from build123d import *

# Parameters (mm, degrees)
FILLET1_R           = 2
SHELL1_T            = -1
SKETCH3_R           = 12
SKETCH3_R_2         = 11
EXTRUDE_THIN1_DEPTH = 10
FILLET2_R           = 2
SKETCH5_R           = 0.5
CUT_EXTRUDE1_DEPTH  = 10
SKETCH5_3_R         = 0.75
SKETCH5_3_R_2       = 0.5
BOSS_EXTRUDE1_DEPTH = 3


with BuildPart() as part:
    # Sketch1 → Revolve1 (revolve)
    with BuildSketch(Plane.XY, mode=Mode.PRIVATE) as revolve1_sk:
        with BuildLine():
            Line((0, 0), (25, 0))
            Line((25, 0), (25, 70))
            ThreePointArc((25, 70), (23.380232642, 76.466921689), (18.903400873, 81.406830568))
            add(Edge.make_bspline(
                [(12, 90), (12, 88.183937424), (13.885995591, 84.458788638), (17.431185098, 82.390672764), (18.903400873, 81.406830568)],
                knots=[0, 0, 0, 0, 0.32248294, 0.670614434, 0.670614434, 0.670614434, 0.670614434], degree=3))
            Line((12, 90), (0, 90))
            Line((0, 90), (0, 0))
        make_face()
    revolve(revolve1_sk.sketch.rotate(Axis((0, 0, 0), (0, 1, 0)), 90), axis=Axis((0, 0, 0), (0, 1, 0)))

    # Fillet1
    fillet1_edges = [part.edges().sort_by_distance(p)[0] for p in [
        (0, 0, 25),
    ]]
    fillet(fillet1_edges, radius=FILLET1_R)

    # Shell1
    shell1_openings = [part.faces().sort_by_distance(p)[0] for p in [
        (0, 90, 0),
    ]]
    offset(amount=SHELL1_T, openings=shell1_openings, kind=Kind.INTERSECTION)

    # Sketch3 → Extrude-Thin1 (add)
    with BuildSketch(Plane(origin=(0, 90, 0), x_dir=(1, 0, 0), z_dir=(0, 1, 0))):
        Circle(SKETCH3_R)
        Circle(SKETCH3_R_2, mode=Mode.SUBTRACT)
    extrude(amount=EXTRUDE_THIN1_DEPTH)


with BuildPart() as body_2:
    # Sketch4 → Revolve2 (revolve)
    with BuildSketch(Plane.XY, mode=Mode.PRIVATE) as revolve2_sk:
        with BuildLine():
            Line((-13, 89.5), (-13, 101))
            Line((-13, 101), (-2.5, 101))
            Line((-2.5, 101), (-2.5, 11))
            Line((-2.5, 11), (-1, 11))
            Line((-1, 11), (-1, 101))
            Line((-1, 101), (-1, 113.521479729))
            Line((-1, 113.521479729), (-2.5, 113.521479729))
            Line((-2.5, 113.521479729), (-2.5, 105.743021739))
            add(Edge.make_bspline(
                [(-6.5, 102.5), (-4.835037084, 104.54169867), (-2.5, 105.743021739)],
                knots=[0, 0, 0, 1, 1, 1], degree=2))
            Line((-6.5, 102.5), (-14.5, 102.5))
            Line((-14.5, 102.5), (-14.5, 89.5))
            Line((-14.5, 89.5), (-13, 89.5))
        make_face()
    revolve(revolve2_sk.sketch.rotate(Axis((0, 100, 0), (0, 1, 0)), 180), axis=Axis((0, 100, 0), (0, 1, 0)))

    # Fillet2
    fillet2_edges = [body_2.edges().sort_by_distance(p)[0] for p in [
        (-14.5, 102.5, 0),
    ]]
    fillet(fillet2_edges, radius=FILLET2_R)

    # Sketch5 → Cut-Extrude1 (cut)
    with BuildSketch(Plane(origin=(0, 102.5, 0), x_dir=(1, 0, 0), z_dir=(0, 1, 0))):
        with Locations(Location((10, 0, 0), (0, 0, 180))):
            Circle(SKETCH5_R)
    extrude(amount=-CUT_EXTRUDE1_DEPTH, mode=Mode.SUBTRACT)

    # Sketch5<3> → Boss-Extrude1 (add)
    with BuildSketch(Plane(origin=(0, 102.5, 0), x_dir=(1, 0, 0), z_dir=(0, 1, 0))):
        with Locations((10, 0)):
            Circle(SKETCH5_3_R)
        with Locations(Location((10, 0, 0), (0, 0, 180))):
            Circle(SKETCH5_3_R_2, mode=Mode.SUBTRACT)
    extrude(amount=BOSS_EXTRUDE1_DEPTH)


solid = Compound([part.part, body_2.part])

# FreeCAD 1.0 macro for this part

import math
import FreeCAD as App
import Part
import Sketcher

V = App.Vector
Q = App.Units.Quantity


def edges_at(feature, points):
    """Names of the edges that pass closest to the given points."""
    edges = feature.Shape.Edges
    near = lambda p: min(range(len(edges)), key=lambda i: edges[i].distToShape(Part.Vertex(*p))[0])
    return sorted({f"Edge{near(p) + 1}" for p in points})


def faces_at(feature, points):
    """Names of the faces that lie closest to the given points."""
    faces = feature.Shape.Faces
    near = lambda p: min(range(len(faces)), key=lambda i: faces[i].distToShape(Part.Vertex(*p))[0])
    return sorted({f"Face{near(p) + 1}" for p in points})

doc = App.newDocument("Part")
body = doc.addObject("PartDesign::Body", "Body")

# Sketch on XY plane
sketch1 = doc.addObject("Sketcher::SketchObject", "Sketch")
body.addObject(sketch1)
sketch1.AttachmentSupport = (doc.XY_Plane, [""])
sketch1.MapMode = "FlatFace"
sketch1.addGeometry([
    Part.LineSegment(V(0, 0, 0), V(25, 0, 0)),  # 0
    Part.LineSegment(V(25, 0, 0), V(25, 70, 0)),  # 1
    Part.ArcOfCircle(Part.Circle(V(11.280523, 70, 0), V(0, 0, 1), 13.719477), math.radians(0), math.radians(56.246259)),  # 2
    Part.BSplineCurve([V(12, 90, 0), V(12, 88.183937, 0), V(13.885996, 84.458789, 0), V(17.431185, 82.390673, 0), V(18.903401, 81.406831, 0)], [4, 1, 4], [0, 0.32248294, 0.670614434], False, 3, [1, 1, 1, 1, 1], False),  # 3
    Part.LineSegment(V(12, 90, 0), V(0, 90, 0)),  # 4
    Part.LineSegment(V(0, 90, 0), V(0, 0, 0)),  # 5
], False)
sketch1.addConstraint([
    Sketcher.Constraint("Block", 3),
    Sketcher.Constraint("Coincident", 0, 2, 1, 1),
    Sketcher.Constraint("Coincident", 1, 2, 2, 1),
    Sketcher.Constraint("Coincident", 2, 2, 3, 2),
    Sketcher.Constraint("Coincident", 3, 1, 4, 1),
    Sketcher.Constraint("Coincident", 4, 2, 5, 1),
    Sketcher.Constraint("Coincident", 5, 2, 0, 1),
    Sketcher.Constraint("Horizontal", 0),
    Sketcher.Constraint("Vertical", 1),
    Sketcher.Constraint("Horizontal", 4),
    Sketcher.Constraint("Vertical", 5),
    Sketcher.Constraint("Coincident", 5, 2, -1, 1),
    Sketcher.Constraint("DistanceX", 0, 1, 0, 2, Q("25 mm")),
    Sketcher.Constraint("DistanceY", 1, 1, 1, 2, Q("70 mm")),
    Sketcher.Constraint("DistanceY", -1, 1, 2, 3, Q("70 mm")),
])
revolution = doc.addObject("PartDesign::Revolution", "Revolution")
body.addObject(revolution)
revolution.Profile = sketch1
revolution.ReferenceAxis = (sketch1, ["V_Axis"])
revolution.Angle = 360
doc.recompute()

fillet = doc.addObject("PartDesign::Fillet", "Fillet")
body.addObject(fillet)
fillet.Base = (revolution, edges_at(revolution, [(0, 0, 25)]))
fillet.Radius = 2
doc.recompute()

thickness = doc.addObject("PartDesign::Thickness", "Thickness")
body.addObject(thickness)
thickness.Base = (fillet, faces_at(fillet, [(0, 90, 0)]))
thickness.Value = 1
thickness.Reversed = True
thickness.Join = "Intersection"

# Sketch on XZ plane
sketch2 = doc.addObject("Sketcher::SketchObject", "Sketch001")
body.addObject(sketch2)
sketch2.AttachmentSupport = (doc.XZ_Plane, [""])
sketch2.MapMode = "FlatFace"
sketch2.AttachmentOffset = App.Placement(V(0, 0, -90), App.Rotation())
sketch2.addGeometry([
    Part.Circle(V(0, 0, 0), V(0, 0, 1), 12),
    Part.Circle(V(0, 0, 0), V(0, 0, 1), 11),
], False)
sketch2.addConstraint([
    Sketcher.Constraint("Coincident", 0, 3, -1, 1),
    Sketcher.Constraint("Coincident", 1, 3, -1, 1),
    Sketcher.Constraint("Diameter", 0, Q("24 mm")),
    Sketcher.Constraint("Diameter", 1, Q("22 mm")),
])
pad1 = doc.addObject("PartDesign::Pad", "Pad")
body.addObject(pad1)
pad1.Profile = sketch2
pad1.Length = 10
pad1.Reversed = True
body2 = doc.addObject("PartDesign::Body", "Body001")

# Sketch on XY plane
sketch3 = doc.addObject("Sketcher::SketchObject", "Sketch002")
body2.addObject(sketch3)
sketch3.AttachmentSupport = (doc.getObject("XY_Plane001"), [""])
sketch3.MapMode = "FlatFace"
sketch3.addGeometry([
    Part.LineSegment(V(-13, 89.5, 0), V(-13, 101, 0)),  # 0
    Part.LineSegment(V(-13, 101, 0), V(-2.5, 101, 0)),  # 1
    Part.LineSegment(V(-2.5, 101, 0), V(-2.5, 11, 0)),  # 2
    Part.LineSegment(V(-2.5, 11, 0), V(-1, 11, 0)),  # 3
    Part.LineSegment(V(-1, 11, 0), V(-1, 113.52148, 0)),  # 4
    Part.LineSegment(V(-1, 113.52148, 0), V(-2.5, 113.52148, 0)),  # 5
    Part.LineSegment(V(-2.5, 113.52148, 0), V(-2.5, 105.743022, 0)),  # 6
    Part.BSplineCurve([V(-6.5, 102.5, 0), V(-4.835037, 104.541699, 0), V(-2.5, 105.743022, 0)], [3, 3], [0, 1], False, 2, [1, 1, 1], False),  # 7
    Part.LineSegment(V(-6.5, 102.5, 0), V(-14.5, 102.5, 0)),  # 8
    Part.LineSegment(V(-14.5, 102.5, 0), V(-14.5, 89.5, 0)),  # 9
    Part.LineSegment(V(-14.5, 89.5, 0), V(-13, 89.5, 0)),  # 10
], False)
sketch3.addConstraint([
    Sketcher.Constraint("Block", 7),
    Sketcher.Constraint("Coincident", 0, 2, 1, 1),
    Sketcher.Constraint("Coincident", 1, 2, 2, 1),
    Sketcher.Constraint("Coincident", 2, 2, 3, 1),
    Sketcher.Constraint("Coincident", 3, 2, 4, 1),
    Sketcher.Constraint("Coincident", 4, 2, 5, 1),
    Sketcher.Constraint("Coincident", 5, 2, 6, 1),
    Sketcher.Constraint("Coincident", 6, 2, 7, 2),
    Sketcher.Constraint("Coincident", 7, 1, 8, 1),
    Sketcher.Constraint("Coincident", 8, 2, 9, 1),
    Sketcher.Constraint("Coincident", 9, 2, 10, 1),
    Sketcher.Constraint("Coincident", 10, 2, 0, 1),
    Sketcher.Constraint("Vertical", 0),
    Sketcher.Constraint("Horizontal", 1),
    Sketcher.Constraint("Vertical", 2),
    Sketcher.Constraint("Horizontal", 3),
    Sketcher.Constraint("Vertical", 4),
    Sketcher.Constraint("Horizontal", 5),
    Sketcher.Constraint("Vertical", 6),
    Sketcher.Constraint("Horizontal", 8),
    Sketcher.Constraint("Vertical", 9),
    Sketcher.Constraint("Horizontal", 10),
    Sketcher.Constraint("DistanceX", 8, 2, 8, 1, Q("8 mm")),
    Sketcher.Constraint("DistanceY", 2, 2, 2, 1, Q("90 mm")),
    Sketcher.Constraint("DistanceY", 9, 2, 9, 1, Q("13 mm")),
    Sketcher.Constraint("DistanceX", 1, 1, 1, 2, Q("10.5 mm")),
    Sketcher.Constraint("DistanceX", 3, 1, 3, 2, Q("1.5 mm")),
    Sketcher.Constraint("DistanceX", 5, 2, 5, 1, Q("1.5 mm")),
    Sketcher.Constraint("DistanceY", 0, 1, 0, 2, Q("11.5 mm")),
    Sketcher.Constraint("DistanceY", 4, 1, 4, 2, Q("102.52148 mm")),
])
revolution2 = doc.addObject("PartDesign::Revolution", "Revolution001")
body2.addObject(revolution2)
revolution2.Profile = sketch3
revolution2.ReferenceAxis = (sketch3, ["V_Axis"])
revolution2.Angle = 360
doc.recompute()

fillet2 = doc.addObject("PartDesign::Fillet", "Fillet001")
body2.addObject(fillet2)
fillet2.Base = (revolution2, edges_at(revolution2, [(-14.5, 102.5, 0)]))
fillet2.Radius = 2

# Sketch on XZ plane
sketch4 = doc.addObject("Sketcher::SketchObject", "Sketch003")
body2.addObject(sketch4)
sketch4.AttachmentSupport = (doc.getObject("XZ_Plane001"), [""])
sketch4.MapMode = "FlatFace"
sketch4.AttachmentOffset = App.Placement(V(0, 0, -102.5), App.Rotation())
sketch4.addGeometry(Part.Circle(V(10, 0, 0), V(0, 0, 1), 0.5), False)
sketch4.addConstraint([
    Sketcher.Constraint("PointOnObject", 0, 3, -1),
    Sketcher.Constraint("Diameter", 0, Q("1 mm")),
    Sketcher.Constraint("DistanceX", -1, 1, 0, 3, Q("10 mm")),
])
pocket1 = doc.addObject("PartDesign::Pocket", "Pocket")
body2.addObject(pocket1)
pocket1.Profile = sketch4
pocket1.Length = 10
pocket1.Reversed = True

# Sketch on XZ plane
sketch5 = doc.addObject("Sketcher::SketchObject", "Sketch004")
body2.addObject(sketch5)
sketch5.AttachmentSupport = (doc.getObject("XZ_Plane001"), [""])
sketch5.MapMode = "FlatFace"
sketch5.AttachmentOffset = App.Placement(V(0, 0, -102.5), App.Rotation())
sketch5.addGeometry([
    Part.Circle(V(10, 0, 0), V(0, 0, 1), 0.8),
    Part.Circle(V(10, 0, 0), V(0, 0, 1), 0.5),
], False)
sketch5.addConstraint([
    Sketcher.Constraint("Coincident", 1, 3, 0, 3),
    Sketcher.Constraint("PointOnObject", 0, 3, -1),
    Sketcher.Constraint("Diameter", 1, Q("1 mm")),
    Sketcher.Constraint("Diameter", 0, Q("1.5 mm")),
    Sketcher.Constraint("DistanceX", -1, 1, 0, 3, Q("10 mm")),
])
pad2 = doc.addObject("PartDesign::Pad", "Pad001")
body2.addObject(pad2)
pad2.Profile = sketch5
pad2.Length = 3
pad2.Reversed = True

doc.recompute()
